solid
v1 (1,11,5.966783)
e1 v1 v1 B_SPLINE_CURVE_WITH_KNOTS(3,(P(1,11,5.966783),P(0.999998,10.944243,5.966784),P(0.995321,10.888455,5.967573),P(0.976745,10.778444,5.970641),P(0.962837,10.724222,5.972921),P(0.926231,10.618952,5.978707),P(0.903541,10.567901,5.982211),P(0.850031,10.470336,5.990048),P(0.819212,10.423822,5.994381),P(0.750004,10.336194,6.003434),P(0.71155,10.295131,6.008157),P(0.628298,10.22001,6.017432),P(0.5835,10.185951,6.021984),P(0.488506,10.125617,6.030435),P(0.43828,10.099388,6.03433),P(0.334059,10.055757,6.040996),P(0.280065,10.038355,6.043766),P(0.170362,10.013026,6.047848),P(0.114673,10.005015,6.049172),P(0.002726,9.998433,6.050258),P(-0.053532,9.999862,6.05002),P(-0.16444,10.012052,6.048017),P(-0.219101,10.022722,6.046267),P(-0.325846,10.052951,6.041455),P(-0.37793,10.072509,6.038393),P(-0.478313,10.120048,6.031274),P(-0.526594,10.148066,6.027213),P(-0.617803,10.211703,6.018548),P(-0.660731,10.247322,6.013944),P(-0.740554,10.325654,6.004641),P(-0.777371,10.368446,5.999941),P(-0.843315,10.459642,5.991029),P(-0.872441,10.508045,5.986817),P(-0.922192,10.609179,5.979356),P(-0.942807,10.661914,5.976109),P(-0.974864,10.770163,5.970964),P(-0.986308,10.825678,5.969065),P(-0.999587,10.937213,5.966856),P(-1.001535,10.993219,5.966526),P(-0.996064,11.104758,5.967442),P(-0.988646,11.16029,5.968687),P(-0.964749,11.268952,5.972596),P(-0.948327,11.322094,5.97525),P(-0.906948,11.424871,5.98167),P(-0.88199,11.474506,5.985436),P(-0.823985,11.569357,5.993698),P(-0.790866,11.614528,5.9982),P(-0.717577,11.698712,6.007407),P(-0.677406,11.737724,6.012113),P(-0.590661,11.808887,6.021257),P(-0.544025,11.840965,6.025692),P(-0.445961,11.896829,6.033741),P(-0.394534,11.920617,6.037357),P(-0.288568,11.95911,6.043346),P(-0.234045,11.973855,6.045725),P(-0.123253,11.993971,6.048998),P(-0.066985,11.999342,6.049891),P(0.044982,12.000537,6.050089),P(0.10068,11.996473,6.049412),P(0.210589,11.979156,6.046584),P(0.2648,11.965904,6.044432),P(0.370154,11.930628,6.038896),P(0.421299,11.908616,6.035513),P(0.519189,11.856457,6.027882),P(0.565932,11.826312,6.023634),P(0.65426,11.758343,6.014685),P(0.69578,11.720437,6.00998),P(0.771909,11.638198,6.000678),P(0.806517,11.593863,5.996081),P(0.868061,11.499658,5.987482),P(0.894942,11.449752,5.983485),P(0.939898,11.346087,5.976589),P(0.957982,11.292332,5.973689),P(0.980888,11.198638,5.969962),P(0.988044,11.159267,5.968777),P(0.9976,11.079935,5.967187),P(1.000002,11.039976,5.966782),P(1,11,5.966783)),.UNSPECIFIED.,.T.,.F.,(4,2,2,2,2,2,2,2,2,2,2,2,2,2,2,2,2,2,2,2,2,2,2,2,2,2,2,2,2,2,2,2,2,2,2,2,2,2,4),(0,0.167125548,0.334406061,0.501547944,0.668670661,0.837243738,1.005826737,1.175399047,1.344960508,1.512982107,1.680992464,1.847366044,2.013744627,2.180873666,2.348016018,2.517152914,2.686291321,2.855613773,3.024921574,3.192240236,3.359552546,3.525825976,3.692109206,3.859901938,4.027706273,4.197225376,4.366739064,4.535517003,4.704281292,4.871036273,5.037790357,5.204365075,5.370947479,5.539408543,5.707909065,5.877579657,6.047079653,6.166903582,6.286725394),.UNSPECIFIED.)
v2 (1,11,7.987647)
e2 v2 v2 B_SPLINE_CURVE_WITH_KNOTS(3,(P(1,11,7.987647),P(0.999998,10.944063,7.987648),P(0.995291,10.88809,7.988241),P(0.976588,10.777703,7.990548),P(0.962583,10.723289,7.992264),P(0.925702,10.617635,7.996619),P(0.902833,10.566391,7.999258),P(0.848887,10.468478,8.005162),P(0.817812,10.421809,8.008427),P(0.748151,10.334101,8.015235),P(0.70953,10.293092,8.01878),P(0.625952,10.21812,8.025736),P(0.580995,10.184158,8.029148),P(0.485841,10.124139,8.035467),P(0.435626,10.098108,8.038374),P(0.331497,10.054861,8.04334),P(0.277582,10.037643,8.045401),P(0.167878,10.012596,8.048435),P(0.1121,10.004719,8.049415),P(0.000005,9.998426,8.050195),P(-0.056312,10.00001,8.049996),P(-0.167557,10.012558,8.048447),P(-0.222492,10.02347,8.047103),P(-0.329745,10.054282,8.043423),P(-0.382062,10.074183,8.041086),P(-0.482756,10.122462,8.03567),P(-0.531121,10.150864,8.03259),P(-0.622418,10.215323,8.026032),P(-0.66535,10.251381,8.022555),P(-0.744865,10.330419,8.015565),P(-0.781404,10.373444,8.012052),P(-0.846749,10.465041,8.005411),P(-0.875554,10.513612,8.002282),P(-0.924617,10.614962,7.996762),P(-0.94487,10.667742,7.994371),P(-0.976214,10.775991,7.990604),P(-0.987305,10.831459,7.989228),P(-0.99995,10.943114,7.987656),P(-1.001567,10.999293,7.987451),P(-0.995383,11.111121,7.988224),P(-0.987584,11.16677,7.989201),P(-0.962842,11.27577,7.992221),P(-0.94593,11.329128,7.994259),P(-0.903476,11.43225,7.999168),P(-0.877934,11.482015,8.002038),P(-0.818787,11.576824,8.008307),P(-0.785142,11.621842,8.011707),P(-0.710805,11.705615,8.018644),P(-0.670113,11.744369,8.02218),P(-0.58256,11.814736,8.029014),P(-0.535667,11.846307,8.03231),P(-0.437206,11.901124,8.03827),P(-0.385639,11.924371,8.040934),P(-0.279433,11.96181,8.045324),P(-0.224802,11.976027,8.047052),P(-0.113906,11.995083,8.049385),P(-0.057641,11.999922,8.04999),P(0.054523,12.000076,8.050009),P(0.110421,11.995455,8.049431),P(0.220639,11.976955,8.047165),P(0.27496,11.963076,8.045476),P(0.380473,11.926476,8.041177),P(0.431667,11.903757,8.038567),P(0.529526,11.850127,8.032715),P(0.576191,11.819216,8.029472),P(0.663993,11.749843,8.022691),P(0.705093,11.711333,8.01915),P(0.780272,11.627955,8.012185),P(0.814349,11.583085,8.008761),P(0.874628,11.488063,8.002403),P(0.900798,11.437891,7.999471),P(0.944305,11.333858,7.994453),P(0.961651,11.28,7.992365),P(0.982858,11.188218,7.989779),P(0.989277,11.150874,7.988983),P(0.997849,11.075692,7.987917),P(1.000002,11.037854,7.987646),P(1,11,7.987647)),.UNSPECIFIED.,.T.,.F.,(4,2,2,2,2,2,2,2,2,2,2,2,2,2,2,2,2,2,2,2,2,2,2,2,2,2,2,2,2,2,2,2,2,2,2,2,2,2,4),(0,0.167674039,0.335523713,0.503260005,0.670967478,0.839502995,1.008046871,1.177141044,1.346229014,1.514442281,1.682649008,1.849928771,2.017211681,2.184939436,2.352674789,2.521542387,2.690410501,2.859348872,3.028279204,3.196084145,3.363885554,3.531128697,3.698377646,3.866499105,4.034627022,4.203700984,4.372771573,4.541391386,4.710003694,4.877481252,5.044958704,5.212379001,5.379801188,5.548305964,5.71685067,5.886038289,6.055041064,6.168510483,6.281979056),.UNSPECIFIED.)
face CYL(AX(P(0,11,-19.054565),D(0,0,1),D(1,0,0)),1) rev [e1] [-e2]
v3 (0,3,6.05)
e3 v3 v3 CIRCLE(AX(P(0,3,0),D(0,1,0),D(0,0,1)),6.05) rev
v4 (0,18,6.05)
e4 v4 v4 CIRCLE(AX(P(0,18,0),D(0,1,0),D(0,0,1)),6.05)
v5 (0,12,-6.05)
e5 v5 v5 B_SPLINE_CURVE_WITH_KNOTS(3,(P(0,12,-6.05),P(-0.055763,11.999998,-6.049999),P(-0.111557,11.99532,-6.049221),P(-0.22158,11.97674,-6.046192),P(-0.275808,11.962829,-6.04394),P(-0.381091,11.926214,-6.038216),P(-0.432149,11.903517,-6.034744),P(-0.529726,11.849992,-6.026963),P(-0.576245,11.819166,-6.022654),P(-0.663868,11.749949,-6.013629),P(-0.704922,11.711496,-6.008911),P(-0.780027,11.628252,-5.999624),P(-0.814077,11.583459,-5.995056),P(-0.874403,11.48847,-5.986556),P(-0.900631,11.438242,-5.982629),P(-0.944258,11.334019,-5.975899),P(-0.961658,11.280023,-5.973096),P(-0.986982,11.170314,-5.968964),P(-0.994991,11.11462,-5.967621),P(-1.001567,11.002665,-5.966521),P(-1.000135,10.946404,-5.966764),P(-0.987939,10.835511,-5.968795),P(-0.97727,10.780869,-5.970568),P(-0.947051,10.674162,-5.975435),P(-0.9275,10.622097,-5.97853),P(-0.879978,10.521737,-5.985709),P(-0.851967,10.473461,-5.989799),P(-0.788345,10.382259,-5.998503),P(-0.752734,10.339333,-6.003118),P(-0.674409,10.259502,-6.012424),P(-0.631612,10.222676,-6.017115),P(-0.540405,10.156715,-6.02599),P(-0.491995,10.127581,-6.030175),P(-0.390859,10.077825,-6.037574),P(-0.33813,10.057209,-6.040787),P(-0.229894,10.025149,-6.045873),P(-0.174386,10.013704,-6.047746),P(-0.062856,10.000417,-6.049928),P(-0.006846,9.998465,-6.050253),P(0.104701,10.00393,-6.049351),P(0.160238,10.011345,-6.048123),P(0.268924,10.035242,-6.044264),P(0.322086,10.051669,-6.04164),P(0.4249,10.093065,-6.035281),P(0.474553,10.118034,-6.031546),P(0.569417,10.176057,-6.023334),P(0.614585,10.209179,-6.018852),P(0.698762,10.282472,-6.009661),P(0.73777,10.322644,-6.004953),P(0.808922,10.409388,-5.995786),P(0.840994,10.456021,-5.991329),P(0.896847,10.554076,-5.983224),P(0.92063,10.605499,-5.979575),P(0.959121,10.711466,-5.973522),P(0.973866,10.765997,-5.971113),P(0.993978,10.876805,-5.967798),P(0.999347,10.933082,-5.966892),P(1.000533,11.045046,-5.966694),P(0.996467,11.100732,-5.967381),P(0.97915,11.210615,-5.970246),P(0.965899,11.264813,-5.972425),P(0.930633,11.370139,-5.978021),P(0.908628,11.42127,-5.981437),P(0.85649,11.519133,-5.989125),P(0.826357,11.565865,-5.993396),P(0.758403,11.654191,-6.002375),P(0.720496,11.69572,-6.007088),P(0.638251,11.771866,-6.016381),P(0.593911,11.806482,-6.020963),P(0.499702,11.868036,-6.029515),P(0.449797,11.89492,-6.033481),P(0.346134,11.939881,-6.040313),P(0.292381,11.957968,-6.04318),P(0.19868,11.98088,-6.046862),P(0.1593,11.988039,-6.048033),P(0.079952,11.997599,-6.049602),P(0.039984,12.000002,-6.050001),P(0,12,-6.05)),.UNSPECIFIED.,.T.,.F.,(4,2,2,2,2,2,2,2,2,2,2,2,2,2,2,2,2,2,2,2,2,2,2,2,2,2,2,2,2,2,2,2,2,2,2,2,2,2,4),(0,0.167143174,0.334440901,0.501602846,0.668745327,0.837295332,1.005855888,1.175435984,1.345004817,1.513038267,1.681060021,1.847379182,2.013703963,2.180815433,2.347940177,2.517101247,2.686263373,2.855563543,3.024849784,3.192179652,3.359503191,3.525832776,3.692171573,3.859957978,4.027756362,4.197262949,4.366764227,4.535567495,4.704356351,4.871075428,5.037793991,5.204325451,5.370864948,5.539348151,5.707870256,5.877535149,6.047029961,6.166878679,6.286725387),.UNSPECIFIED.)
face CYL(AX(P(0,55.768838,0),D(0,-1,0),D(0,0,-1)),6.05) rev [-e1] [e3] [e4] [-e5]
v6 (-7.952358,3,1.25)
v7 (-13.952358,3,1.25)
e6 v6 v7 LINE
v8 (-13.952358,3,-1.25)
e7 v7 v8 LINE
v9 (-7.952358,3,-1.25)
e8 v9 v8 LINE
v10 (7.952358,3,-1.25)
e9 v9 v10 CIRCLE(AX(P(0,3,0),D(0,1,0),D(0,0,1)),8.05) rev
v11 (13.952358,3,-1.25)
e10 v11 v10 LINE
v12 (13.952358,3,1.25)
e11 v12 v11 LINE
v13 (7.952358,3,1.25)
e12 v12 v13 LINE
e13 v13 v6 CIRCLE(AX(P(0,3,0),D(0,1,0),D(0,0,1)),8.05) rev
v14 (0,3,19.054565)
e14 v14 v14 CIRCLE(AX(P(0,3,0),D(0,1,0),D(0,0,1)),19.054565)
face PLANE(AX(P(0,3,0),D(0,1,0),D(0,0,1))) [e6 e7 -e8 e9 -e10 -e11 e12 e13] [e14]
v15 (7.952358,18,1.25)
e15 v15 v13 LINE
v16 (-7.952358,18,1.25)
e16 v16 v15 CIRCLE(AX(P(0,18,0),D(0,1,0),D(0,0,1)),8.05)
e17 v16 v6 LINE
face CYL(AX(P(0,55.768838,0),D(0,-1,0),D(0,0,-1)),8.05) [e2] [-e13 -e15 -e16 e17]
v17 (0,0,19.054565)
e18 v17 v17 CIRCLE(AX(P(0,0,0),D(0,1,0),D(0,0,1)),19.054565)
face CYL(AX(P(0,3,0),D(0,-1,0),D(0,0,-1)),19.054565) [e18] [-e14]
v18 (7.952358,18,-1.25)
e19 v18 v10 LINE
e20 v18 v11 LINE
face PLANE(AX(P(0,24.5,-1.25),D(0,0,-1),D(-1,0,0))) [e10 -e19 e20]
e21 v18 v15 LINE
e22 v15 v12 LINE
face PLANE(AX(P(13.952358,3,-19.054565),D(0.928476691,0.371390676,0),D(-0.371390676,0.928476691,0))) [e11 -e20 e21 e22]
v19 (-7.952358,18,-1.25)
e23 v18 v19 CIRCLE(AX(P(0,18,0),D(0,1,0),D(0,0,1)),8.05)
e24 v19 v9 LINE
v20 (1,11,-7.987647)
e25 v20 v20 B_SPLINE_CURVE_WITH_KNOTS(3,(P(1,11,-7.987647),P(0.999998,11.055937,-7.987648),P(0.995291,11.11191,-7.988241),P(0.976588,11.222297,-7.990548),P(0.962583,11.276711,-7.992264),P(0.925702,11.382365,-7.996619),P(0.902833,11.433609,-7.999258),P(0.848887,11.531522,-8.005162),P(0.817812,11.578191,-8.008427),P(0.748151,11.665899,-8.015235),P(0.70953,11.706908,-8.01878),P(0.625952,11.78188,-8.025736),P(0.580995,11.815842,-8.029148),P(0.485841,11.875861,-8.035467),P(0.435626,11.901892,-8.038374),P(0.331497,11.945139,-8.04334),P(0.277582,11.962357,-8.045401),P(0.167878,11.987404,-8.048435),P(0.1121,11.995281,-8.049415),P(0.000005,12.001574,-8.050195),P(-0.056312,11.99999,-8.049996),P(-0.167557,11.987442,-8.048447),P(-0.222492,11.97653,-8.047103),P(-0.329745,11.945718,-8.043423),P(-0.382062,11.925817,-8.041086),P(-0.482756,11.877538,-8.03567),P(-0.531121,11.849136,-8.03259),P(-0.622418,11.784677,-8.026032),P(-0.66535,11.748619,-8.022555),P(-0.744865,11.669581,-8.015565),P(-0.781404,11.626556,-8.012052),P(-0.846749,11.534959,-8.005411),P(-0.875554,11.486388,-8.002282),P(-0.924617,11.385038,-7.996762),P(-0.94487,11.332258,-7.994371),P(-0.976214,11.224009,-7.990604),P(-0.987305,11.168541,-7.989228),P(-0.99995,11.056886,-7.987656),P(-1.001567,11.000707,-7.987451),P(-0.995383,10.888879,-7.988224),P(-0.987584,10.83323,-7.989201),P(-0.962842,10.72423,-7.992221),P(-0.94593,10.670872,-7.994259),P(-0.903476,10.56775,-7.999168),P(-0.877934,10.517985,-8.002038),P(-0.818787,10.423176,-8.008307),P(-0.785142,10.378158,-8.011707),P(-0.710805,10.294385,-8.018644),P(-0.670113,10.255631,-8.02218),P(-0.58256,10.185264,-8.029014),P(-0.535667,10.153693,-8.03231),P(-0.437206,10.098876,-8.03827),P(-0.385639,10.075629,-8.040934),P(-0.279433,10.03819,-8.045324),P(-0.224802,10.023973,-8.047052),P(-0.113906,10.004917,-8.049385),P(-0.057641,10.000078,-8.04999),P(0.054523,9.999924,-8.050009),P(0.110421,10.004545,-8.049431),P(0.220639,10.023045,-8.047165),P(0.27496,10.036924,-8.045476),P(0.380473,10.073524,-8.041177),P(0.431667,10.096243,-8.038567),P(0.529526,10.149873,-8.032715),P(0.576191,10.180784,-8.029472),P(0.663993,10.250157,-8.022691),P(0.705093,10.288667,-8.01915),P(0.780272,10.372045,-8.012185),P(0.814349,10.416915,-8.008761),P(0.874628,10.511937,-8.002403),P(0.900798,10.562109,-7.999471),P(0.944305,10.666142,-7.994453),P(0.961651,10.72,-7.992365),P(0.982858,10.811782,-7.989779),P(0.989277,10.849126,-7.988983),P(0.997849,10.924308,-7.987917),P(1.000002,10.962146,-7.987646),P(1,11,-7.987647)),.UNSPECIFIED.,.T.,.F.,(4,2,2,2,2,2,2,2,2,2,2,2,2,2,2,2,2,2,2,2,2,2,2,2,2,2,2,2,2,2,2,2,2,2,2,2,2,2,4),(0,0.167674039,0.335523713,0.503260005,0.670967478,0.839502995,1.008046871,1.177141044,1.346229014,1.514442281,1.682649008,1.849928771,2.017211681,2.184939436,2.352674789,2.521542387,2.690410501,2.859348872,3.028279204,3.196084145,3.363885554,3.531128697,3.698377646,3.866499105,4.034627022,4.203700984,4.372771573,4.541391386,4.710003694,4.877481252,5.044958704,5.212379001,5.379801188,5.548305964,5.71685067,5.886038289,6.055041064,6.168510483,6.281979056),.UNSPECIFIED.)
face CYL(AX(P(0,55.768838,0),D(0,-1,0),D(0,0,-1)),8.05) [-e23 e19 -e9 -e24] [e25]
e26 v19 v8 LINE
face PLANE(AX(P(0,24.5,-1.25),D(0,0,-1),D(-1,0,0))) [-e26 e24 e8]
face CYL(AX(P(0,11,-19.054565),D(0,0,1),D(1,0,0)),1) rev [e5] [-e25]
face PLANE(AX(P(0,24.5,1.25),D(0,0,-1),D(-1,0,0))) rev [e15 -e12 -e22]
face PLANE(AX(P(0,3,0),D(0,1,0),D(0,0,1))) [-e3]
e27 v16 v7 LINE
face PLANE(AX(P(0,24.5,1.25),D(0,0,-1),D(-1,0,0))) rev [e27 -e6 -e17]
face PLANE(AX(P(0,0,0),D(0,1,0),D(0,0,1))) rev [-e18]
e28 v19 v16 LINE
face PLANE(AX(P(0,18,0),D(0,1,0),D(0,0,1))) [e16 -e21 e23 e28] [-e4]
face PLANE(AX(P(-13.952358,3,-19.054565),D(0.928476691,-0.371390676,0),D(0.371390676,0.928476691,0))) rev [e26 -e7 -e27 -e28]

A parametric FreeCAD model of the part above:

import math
import FreeCAD as App
import Part
import Sketcher

V = App.Vector


def add_polygon(sketch, points):
    """Adds a closed chain of lines whose ends are joined by coincident constraints."""
    first, n = sketch.GeometryCount, len(points)
    for a, b in zip(points, points[1:] + points[:1]):
        sketch.addGeometry(Part.LineSegment(App.Vector(*a, 0), App.Vector(*b, 0)), False)
    for i in range(n):
        sketch.addConstraint(Sketcher.Constraint("Coincident", first + i, 2, first + (i + 1) % n, 1))

doc = App.newDocument("Part")
body = doc.addObject("PartDesign::Body", "Body")

# Sketch on XZ plane
sketch1 = doc.addObject("Sketcher::SketchObject", "Sketch")
body.addObject(sketch1)
sketch1.AttachmentSupport = (doc.XZ_Plane, [""])
sketch1.MapMode = "FlatFace"
sketch1.addGeometry(Part.Circle(V(0, 0, 0), V(0, 0, 1), 19.054565), False)
sketch1.addConstraint([
    Sketcher.Constraint("Coincident", 0, 3, -1, 1),
    Sketcher.Constraint("Diameter", 0, 38.10913),
])
pad1 = doc.addObject("PartDesign::Pad", "Pad")
body.addObject(pad1)
pad1.Profile = sketch1
pad1.Length = 3
pad1.Reversed = True

# Sketch on XZ plane
sketch2 = doc.addObject("Sketcher::SketchObject", "Sketch001")
body.addObject(sketch2)
sketch2.AttachmentSupport = (doc.XZ_Plane, [""])
sketch2.MapMode = "FlatFace"
sketch2.addGeometry([
    Part.Circle(V(0, 0, 0), V(0, 0, 1), 8.05),
    Part.Circle(V(0, 0, 0), V(0, 0, 1), 6.05),
], False)
sketch2.addConstraint([
    Sketcher.Constraint("Coincident", 0, 3, -1, 1),
    Sketcher.Constraint("Coincident", 1, 3, -1, 1),
    Sketcher.Constraint("Diameter", 0, 16.1),
    Sketcher.Constraint("Diameter", 1, 12.1),
])
pad2 = doc.addObject("PartDesign::Pad", "Pad001")
body.addObject(pad2)
pad2.Profile = sketch2
pad2.Length = 18
pad2.Reversed = True

# Sketch on XZ plane
sketch3 = doc.addObject("Sketcher::SketchObject", "Sketch002")
body.addObject(sketch3)
sketch3.AttachmentSupport = (doc.XZ_Plane, [""])
sketch3.MapMode = "FlatFace"
sketch3.addGeometry([
    Part.ArcOfCircle(Part.Circle(V(0, 0, 0), V(0, 0, 1), 8.05), math.radians(171.066993), math.radians(188.933007)),  # 0
    Part.LineSegment(V(-7.952358, -1.25, 0), V(-13.952358, -1.25, 0)),  # 1
    Part.LineSegment(V(-13.952358, -1.25, 0), V(-13.952358, 1.25, 0)),  # 2
    Part.LineSegment(V(-13.952358, 1.25, 0), V(-7.952358, 1.25, 0)),  # 3
    Part.LineSegment(V(13.952358, -1.25, 0), V(7.952358, -1.25, 0)),  # 4
    Part.ArcOfCircle(Part.Circle(V(0, 0, 0), V(0, 0, 1), 8.05), math.radians(-8.933007), math.radians(0)),  # 5
    Part.ArcOfCircle(Part.Circle(V(0, 0, 0), V(0, 0, 1), 8.05), math.radians(0), math.radians(8.933007)),  # 6
    Part.LineSegment(V(7.952358, 1.25, 0), V(13.952358, 1.25, 0)),  # 7
    Part.LineSegment(V(13.952358, 1.25, 0), V(13.952358, -1.25, 0)),  # 8
], False)
sketch3.addConstraint([
    Sketcher.Constraint("Coincident", 0, 2, 1, 1),
    Sketcher.Constraint("Coincident", 1, 2, 2, 1),
    Sketcher.Constraint("Coincident", 2, 2, 3, 1),
    Sketcher.Constraint("Coincident", 3, 2, 0, 1),
    Sketcher.Constraint("Coincident", 4, 2, 5, 1),
    Sketcher.Constraint("Tangent", 5, 2, 6, 1),
    Sketcher.Constraint("Coincident", 6, 2, 7, 1),
    Sketcher.Constraint("Coincident", 7, 2, 8, 1),
    Sketcher.Constraint("Coincident", 8, 2, 4, 1),
    Sketcher.Constraint("Horizontal", 1),
    Sketcher.Constraint("Vertical", 2),
    Sketcher.Constraint("Horizontal", 3),
    Sketcher.Constraint("Horizontal", 4),
    Sketcher.Constraint("Horizontal", 7),
    Sketcher.Constraint("Vertical", 8),
    Sketcher.Constraint("Coincident", 0, 3, -1, 1),
    Sketcher.Constraint("Coincident", 5, 3, -1, 1),
    Sketcher.Constraint("Equal", 0, 5),
    Sketcher.Constraint("Equal", 5, 6),
    Sketcher.Constraint("Symmetric", 1, 2, 7, 2, -1, 1),
    Sketcher.Constraint("PointOnObject", 5, 2, -1),
    Sketcher.Constraint("Horizontal", 1, 2, 4, 2),
    Sketcher.Constraint("Horizontal", 3, 2, 6, 2),
    Sketcher.Constraint("DistanceX", 1, 2, 1, 1, 6.0),
    Sketcher.Constraint("Radius", 0, 8.05),
    Sketcher.Constraint("DistanceY", 2, 1, 2, 2, 2.5),
])
pad3 = doc.addObject("PartDesign::Pad", "Pad002")
body.addObject(pad3)
pad3.Profile = sketch3
pad3.Length = 18
pad3.Reversed = True

# Sketch on XY plane
sketch4 = doc.addObject("Sketcher::SketchObject", "Sketch003")
body.addObject(sketch4)
sketch4.AttachmentSupport = (doc.XY_Plane, [""])
sketch4.MapMode = "FlatFace"
add_polygon(sketch4, [(-13.952358, 3), (-7.952358, 18), (-13.952358, 18)])  # lines 0-2
add_polygon(sketch4, [(13.952358, 18), (7.952358, 18), (13.952358, 3)])  # lines 3-5
sketch4.addConstraint([
    Sketcher.Constraint("Horizontal", 1),
    Sketcher.Constraint("Vertical", 2),
    Sketcher.Constraint("Horizontal", 3),
    Sketcher.Constraint("Vertical", 5),
    Sketcher.Constraint("Symmetric", 0, 2, 3, 2, -2),
    Sketcher.Constraint("Symmetric", 2, 2, 4, 2, -2),
    Sketcher.Constraint("DistanceX", 1, 2, 1, 1, 6.0),
    Sketcher.Constraint("DistanceY", 2, 2, 2, 1, 15.0),
    Sketcher.Constraint("DistanceY", -1, 1, 0, 2, 18.0),
    Sketcher.Constraint("DistanceX", 0, 2, -1, 1, 7.952358),
])
pocket1 = doc.addObject("PartDesign::Pocket", "Pocket")
body.addObject(pocket1)
pocket1.Profile = sketch4
pocket1.Type = "ThroughAll"
pocket1.Midplane = True

# Sketch on XY plane
sketch5 = doc.addObject("Sketcher::SketchObject", "Sketch004")
body.addObject(sketch5)
sketch5.AttachmentSupport = (doc.XY_Plane, [""])
sketch5.MapMode = "FlatFace"
sketch5.addGeometry(Part.Circle(V(0, 11, 0), V(0, 0, 1), 1), False)
sketch5.addConstraint([
    Sketcher.Constraint("PointOnObject", 0, 3, -2),
    Sketcher.Constraint("Diameter", 0, 2.0),
    Sketcher.Constraint("DistanceY", -1, 1, 0, 3, 11.0),
])
pocket2 = doc.addObject("PartDesign::Pocket", "Pocket001")
body.addObject(pocket2)
pocket2.Profile = sketch5
pocket2.Type = "ThroughAll"
pocket2.Midplane = True

doc.recompute()
